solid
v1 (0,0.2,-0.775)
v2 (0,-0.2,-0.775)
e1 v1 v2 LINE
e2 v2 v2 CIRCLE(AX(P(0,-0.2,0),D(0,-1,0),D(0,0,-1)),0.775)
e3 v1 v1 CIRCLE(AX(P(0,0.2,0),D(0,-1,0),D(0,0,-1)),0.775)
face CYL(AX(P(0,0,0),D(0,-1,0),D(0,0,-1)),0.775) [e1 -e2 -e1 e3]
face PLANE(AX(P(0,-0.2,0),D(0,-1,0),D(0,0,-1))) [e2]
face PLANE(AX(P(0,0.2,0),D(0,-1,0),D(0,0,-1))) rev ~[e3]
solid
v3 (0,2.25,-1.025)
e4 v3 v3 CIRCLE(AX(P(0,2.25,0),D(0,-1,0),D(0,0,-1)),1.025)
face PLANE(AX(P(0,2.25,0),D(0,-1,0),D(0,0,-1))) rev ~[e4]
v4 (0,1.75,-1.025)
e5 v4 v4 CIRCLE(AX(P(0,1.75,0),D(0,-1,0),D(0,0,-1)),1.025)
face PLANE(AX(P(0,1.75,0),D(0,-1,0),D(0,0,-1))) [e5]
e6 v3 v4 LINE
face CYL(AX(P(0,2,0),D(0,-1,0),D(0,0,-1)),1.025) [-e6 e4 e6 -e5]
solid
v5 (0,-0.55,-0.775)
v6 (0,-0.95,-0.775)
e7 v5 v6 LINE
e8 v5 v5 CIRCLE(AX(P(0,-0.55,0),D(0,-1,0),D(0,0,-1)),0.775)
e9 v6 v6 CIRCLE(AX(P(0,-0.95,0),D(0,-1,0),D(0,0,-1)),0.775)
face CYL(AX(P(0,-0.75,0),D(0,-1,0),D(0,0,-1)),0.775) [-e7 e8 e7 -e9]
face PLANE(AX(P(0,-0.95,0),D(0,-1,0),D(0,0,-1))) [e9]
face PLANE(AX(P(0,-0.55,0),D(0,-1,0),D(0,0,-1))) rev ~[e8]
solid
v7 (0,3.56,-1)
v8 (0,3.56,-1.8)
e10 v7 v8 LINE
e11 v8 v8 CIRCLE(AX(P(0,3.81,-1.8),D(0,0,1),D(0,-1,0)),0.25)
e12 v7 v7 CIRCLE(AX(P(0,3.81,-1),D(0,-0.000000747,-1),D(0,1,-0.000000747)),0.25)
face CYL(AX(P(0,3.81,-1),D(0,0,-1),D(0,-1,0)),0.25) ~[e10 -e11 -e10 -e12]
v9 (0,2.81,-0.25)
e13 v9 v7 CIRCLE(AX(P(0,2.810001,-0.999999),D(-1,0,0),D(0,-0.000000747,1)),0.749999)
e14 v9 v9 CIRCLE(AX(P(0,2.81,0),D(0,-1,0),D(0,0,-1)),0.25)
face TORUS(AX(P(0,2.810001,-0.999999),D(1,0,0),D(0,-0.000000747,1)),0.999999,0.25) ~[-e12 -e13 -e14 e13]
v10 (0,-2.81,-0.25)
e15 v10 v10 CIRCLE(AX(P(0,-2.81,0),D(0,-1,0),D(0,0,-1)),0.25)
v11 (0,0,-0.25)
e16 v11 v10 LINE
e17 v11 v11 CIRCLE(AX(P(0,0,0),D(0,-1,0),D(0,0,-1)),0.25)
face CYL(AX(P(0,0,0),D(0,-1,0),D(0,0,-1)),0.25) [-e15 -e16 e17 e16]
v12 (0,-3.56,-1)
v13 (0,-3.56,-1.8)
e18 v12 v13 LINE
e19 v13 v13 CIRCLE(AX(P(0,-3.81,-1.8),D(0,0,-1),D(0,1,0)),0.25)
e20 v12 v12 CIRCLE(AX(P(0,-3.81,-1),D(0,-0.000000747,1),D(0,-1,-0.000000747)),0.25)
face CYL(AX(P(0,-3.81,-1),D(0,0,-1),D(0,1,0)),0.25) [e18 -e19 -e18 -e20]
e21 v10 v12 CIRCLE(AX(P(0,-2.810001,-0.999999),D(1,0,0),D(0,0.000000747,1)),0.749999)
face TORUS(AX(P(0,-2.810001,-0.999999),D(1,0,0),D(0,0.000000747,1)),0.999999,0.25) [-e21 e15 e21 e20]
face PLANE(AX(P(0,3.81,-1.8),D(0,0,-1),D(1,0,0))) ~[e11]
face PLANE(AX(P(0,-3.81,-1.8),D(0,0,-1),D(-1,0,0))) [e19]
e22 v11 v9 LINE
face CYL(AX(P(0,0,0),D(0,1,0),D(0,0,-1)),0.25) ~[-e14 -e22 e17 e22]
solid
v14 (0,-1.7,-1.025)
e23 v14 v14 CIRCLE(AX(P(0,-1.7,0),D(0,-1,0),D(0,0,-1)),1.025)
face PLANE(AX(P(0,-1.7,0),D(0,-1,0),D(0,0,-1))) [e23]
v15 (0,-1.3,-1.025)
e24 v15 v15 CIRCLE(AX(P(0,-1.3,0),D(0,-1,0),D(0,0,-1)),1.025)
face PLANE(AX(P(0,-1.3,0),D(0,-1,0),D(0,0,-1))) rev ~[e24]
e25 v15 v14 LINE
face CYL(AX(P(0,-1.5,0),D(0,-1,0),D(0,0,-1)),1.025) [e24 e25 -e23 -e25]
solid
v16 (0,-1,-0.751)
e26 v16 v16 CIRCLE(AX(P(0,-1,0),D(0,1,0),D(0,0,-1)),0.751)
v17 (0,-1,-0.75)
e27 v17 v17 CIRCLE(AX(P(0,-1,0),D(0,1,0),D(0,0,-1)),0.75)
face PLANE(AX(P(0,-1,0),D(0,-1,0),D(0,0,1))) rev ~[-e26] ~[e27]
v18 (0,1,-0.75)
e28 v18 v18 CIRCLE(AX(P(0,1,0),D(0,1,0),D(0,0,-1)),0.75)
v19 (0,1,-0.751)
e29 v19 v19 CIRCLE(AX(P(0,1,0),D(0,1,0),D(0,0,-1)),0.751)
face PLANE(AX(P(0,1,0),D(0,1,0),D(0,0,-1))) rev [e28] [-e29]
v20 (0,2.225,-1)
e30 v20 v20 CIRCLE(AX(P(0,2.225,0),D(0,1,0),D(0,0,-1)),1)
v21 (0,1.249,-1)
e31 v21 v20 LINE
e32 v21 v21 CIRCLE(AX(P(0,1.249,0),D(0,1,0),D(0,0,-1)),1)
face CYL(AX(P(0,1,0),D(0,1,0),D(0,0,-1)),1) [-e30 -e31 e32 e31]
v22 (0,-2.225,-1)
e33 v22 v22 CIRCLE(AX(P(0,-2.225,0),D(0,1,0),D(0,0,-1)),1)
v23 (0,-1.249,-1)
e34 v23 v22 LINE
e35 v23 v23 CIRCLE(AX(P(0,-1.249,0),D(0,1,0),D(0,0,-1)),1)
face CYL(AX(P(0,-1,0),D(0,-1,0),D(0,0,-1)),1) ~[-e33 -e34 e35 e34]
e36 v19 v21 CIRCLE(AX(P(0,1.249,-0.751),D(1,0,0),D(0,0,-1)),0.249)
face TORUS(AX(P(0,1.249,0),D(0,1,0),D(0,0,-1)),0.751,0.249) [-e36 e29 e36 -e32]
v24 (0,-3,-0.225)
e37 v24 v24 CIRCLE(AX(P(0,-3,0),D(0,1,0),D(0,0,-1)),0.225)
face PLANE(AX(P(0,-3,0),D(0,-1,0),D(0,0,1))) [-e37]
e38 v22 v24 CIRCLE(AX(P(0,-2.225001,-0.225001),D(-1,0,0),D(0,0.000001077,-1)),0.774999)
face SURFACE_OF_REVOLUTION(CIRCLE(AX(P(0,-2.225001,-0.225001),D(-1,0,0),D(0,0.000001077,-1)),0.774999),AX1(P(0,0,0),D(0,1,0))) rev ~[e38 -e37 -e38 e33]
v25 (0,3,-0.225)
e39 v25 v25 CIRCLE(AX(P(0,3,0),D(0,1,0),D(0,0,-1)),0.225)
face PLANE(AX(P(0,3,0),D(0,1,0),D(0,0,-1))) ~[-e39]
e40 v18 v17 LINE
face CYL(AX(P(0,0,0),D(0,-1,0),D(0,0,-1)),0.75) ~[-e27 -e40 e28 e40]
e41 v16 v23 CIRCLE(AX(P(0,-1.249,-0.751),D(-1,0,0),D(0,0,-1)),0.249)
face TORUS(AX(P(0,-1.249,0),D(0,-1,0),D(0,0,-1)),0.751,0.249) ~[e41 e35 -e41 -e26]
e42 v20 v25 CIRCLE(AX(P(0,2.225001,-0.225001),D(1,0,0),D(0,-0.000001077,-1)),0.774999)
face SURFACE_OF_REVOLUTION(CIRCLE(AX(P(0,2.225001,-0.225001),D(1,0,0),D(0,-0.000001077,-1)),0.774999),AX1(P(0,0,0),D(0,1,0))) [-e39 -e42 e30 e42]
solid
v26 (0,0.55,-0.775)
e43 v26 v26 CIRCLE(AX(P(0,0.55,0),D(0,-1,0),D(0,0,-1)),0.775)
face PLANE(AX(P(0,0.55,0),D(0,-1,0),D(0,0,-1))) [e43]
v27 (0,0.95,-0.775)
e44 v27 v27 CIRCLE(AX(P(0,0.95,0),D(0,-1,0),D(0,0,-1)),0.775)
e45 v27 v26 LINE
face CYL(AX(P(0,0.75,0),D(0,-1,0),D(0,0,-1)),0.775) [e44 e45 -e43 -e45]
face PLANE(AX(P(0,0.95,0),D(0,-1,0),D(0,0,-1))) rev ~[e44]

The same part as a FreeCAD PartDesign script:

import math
import FreeCAD as App
import Part
import Sketcher

V = App.Vector


def edges_at(feature, points):
    """Names of the edges that pass closest to the given points."""
    edges = feature.Shape.Edges
    near = lambda p: min(range(len(edges)), key=lambda i: edges[i].distToShape(Part.Vertex(*p))[0])
    return sorted({f"Edge{near(p) + 1}" for p in points})

doc = App.newDocument("Part")
params = doc.addObject("Spreadsheet::Sheet", "Params")
for row, (alias, value) in enumerate([
    ("sketch1_diameter", "2.05 mm"),
    ("pad1_length", "0.4 mm"),
    ("sketch2_diameter", "1.55 mm"),
    ("pad2_length", "0.4 mm"),
    ("sketch3_diameter", "1.55 mm"),
    ("pad3_length", "0.4 mm"),
    ("sketch4_diameter", "1.55 mm"),
    ("pad4_length", "0.4 mm"),
    ("sketch5_diameter", "2.05 mm"),
    ("pad5_length", "0.5 mm"),
    ("sketch6_width", "1 mm"),
    ("sketch6_width2", "3 mm"),
    ("sketch6_height", "0.75 mm"),
    ("revolution_angle", "360 deg"),
    ("fillet_radius", "0.249 mm"),
    ("sketch7_diameter", "0.5 mm"),
    ("sketch8_radius", "0.999999 mm"),
    ("sketch8_height", "0.8 mm"),
    ("sketch8_width", "2.81 mm"),
], start=1):
    params.set(f"A{row}", alias)
    params.set(f"B{row}", "=" + value)
    params.setAlias(f"B{row}", alias)

body = doc.addObject("PartDesign::Body", "Body")

# Sketch on XZ plane
sketch1 = body.newObject("Sketcher::SketchObject", "Sketch")
sketch1.AttachmentSupport = (doc.getObject("XZ_Plane"), [""])
sketch1.MapMode = "FlatFace"
sketch1.AttachmentOffset = App.Placement(V(0, 0, 1.5), App.Rotation())
sketch1.addGeometry(Part.Circle(V(0, 0, 0), V(0, 0, 1), 1.025), False)
sketch1.addConstraint([
    Sketcher.Constraint("Coincident", 0, 3, -1, 1),
    Sketcher.Constraint("Diameter", 0, 2.05),
])
sketch1.setExpression("Constraints[1]", "Params.sketch1_diameter")
pad1 = body.newObject("PartDesign::Pad", "Pad")
pad1.Profile = sketch1
pad1.setExpression("Length", "Params.pad1_length")
pad1.Midplane = True
body2 = doc.addObject("PartDesign::Body", "Body001")

# Sketch on XZ plane
sketch2 = body2.newObject("Sketcher::SketchObject", "Sketch001")
sketch2.AttachmentSupport = (doc.getObject("XZ_Plane001"), [""])
sketch2.MapMode = "FlatFace"
sketch2.AttachmentOffset = App.Placement(V(0, 0, 0.75), App.Rotation())
sketch2.addGeometry(Part.Circle(V(0, 0, 0), V(0, 0, 1), 0.775), False)
sketch2.addConstraint([
    Sketcher.Constraint("Coincident", 0, 3, -1, 1),
    Sketcher.Constraint("Diameter", 0, 1.55),
])
sketch2.setExpression("Constraints[1]", "Params.sketch2_diameter")
pad2 = body2.newObject("PartDesign::Pad", "Pad001")
pad2.Profile = sketch2
pad2.setExpression("Length", "Params.pad2_length")
pad2.Midplane = True
body3 = doc.addObject("PartDesign::Body", "Body002")

# Sketch on XZ plane
sketch3 = body3.newObject("Sketcher::SketchObject", "Sketch002")
sketch3.AttachmentSupport = (doc.getObject("XZ_Plane002"), [""])
sketch3.MapMode = "FlatFace"
sketch3.addGeometry(Part.Circle(V(0, 0, 0), V(0, 0, 1), 0.775), False)
sketch3.addConstraint([
    Sketcher.Constraint("Coincident", 0, 3, -1, 1),
    Sketcher.Constraint("Diameter", 0, 1.55),
])
sketch3.setExpression("Constraints[1]", "Params.sketch3_diameter")
pad3 = body3.newObject("PartDesign::Pad", "Pad002")
pad3.Profile = sketch3
pad3.setExpression("Length", "Params.pad3_length")
pad3.Midplane = True
body4 = doc.addObject("PartDesign::Body", "Body003")

# Sketch on XZ plane
sketch4 = body4.newObject("Sketcher::SketchObject", "Sketch003")
sketch4.AttachmentSupport = (doc.getObject("XZ_Plane003"), [""])
sketch4.MapMode = "FlatFace"
sketch4.AttachmentOffset = App.Placement(V(0, 0, -0.75), App.Rotation())
sketch4.addGeometry(Part.Circle(V(0, 0, 0), V(0, 0, 1), 0.775), False)
sketch4.addConstraint([
    Sketcher.Constraint("Coincident", 0, 3, -1, 1),
    Sketcher.Constraint("Diameter", 0, 1.55),
])
sketch4.setExpression("Constraints[1]", "Params.sketch4_diameter")
pad4 = body4.newObject("PartDesign::Pad", "Pad003")
pad4.Profile = sketch4
pad4.setExpression("Length", "Params.pad4_length")
pad4.Midplane = True
body5 = doc.addObject("PartDesign::Body", "Body004")

# Sketch on XZ plane
sketch5 = body5.newObject("Sketcher::SketchObject", "Sketch004")
sketch5.AttachmentSupport = (doc.getObject("XZ_Plane004"), [""])
sketch5.MapMode = "FlatFace"
sketch5.AttachmentOffset = App.Placement(V(0, 0, -2), App.Rotation())
sketch5.addGeometry(Part.Circle(V(0, 0, 0), V(0, 0, 1), 1.025), False)
sketch5.addConstraint([
    Sketcher.Constraint("Coincident", 0, 3, -1, 1),
    Sketcher.Constraint("Diameter", 0, 2.05),
])
sketch5.setExpression("Constraints[1]", "Params.sketch5_diameter")
pad5 = body5.newObject("PartDesign::Pad", "Pad004")
pad5.Profile = sketch5
pad5.setExpression("Length", "Params.pad5_length")
pad5.Midplane = True
body6 = doc.addObject("PartDesign::Body", "Body005")

# Sketch on YZ plane
sketch6 = body6.newObject("Sketcher::SketchObject", "Sketch005")
sketch6.AttachmentSupport = (doc.getObject("YZ_Plane005"), [""])
sketch6.MapMode = "FlatFace"
sketch6.addGeometry([
    Part.LineSegment(V(0, 0, 0), V(0, -0.75, 0)),  # 0
    Part.LineSegment(V(0, -0.75, 0), V(1, -0.75, 0)),  # 1
    Part.LineSegment(V(1, -0.75, 0), V(1, -1, 0)),  # 2
    Part.LineSegment(V(1, -1, 0), V(2.225, -1, 0)),  # 3
    Part.ArcOfCircle(Part.Circle(V(2.225001, -0.225001, 0), V(0, 0, 1), 0.774999), math.radians(-90.000062), math.radians(0.000062)),  # 4
    Part.LineSegment(V(3, -0.225, 0), V(3, 0, 0)),  # 5
    Part.LineSegment(V(3, 0, 0), V(0, 0, 0)),  # 6
], False)
sketch6.addConstraint([
    Sketcher.Constraint("Coincident", 0, 2, 1, 1),
    Sketcher.Constraint("Coincident", 1, 2, 2, 1),
    Sketcher.Constraint("Coincident", 2, 2, 3, 1),
    Sketcher.Constraint("Tangent", 3, 2, 4, 1),
    Sketcher.Constraint("Tangent", 4, 2, 5, 1),
    Sketcher.Constraint("Coincident", 5, 2, 6, 1),
    Sketcher.Constraint("Coincident", 6, 2, 0, 1),
    Sketcher.Constraint("Vertical", 0),
    Sketcher.Constraint("Horizontal", 1),
    Sketcher.Constraint("Vertical", 2),
    Sketcher.Constraint("Horizontal", 3),
    Sketcher.Constraint("Vertical", 5),
    Sketcher.Constraint("Horizontal", 6),
    Sketcher.Constraint("Coincident", 6, 2, -1, 1),
    Sketcher.Constraint("DistanceX", 1, 1, 1, 2, 1.0),
    Sketcher.Constraint("DistanceX", 6, 2, 6, 1, 3.0),
    Sketcher.Constraint("DistanceY", 2, 2, -1, 1, 1.0),
    Sketcher.Constraint("Radius", 4, 0.774999),
    Sketcher.Constraint("DistanceY", 0, 2, 0, 1, 0.75),
])
sketch6.setExpression("Constraints[14]", "Params.sketch6_width")
sketch6.setExpression("Constraints[15]", "Params.sketch6_width2")
sketch6.setExpression("Constraints[18]", "Params.sketch6_height")
revolution = body6.newObject("PartDesign::Revolution", "Revolution")
revolution.Profile = sketch6
revolution.ReferenceAxis = (sketch6, ["H_Axis"])
revolution.setExpression("Angle", "Params.revolution_angle")
doc.recompute()

mirrored = body6.newObject("PartDesign::Mirrored", "Mirrored")
mirrored.Originals = [revolution]
mirrored.MirrorPlane = (doc.getObject("XZ_Plane005"), [""])
body6.Tip = mirrored
doc.recompute()

fillet = body6.newObject("PartDesign::Fillet", "Fillet")
fillet.Base = (mirrored, edges_at(mirrored, [(0, -1, 1), (0, 1, 1)]))
fillet.setExpression("Radius", "Params.fillet_radius")
body7 = doc.addObject("PartDesign::Body", "Body006")

# Sketch on XZ plane
sketch7 = body7.newObject("Sketcher::SketchObject", "Sketch006")
sketch7.AttachmentSupport = (doc.getObject("XZ_Plane006"), [""])
sketch7.MapMode = "FlatFace"
sketch7.addGeometry(Part.Circle(V(0, 0, 0), V(0, 0, 1), 0.25), False)
sketch7.addConstraint([
    Sketcher.Constraint("Coincident", 0, 3, -1, 1),
    Sketcher.Constraint("Diameter", 0, 0.5),
])
sketch7.setExpression("Constraints[1]", "Params.sketch7_diameter")

# Sketch on YZ plane
sketch8 = body7.newObject("Sketcher::SketchObject", "Sketch007")
sketch8.AttachmentSupport = (doc.getObject("YZ_Plane006"), [""])
sketch8.MapMode = "FlatFace"
sketch8.addGeometry([
    Part.LineSegment(V(0, 0, 0), V(-2.81, 0, 0)),
    Part.ArcOfCircle(Part.Circle(V(-2.810001, -0.999999, 0), V(0, 0, 1), 0.999999), math.radians(89.999957), math.radians(180.000043)),
    Part.LineSegment(V(-3.81, -1, 0), V(-3.81, -1.8, 0)),
], False)
sketch8.addConstraint([
    Sketcher.Constraint("Tangent", 0, 2, 1, 1),
    Sketcher.Constraint("Tangent", 1, 2, 2, 1),
    Sketcher.Constraint("Horizontal", 0),
    Sketcher.Constraint("Vertical", 2),
    Sketcher.Constraint("Coincident", 0, 1, -1, 1),
    Sketcher.Constraint("Radius", 1, 0.999999),
    Sketcher.Constraint("DistanceY", 2, 2, 2, 1, 0.8),
    Sketcher.Constraint("DistanceX", 0, 2, 0, 1, 2.81),
])
sketch8.setExpression("Constraints[5]", "Params.sketch8_radius")
sketch8.setExpression("Constraints[6]", "Params.sketch8_height")
sketch8.setExpression("Constraints[7]", "Params.sketch8_width")
doc.recompute()

additivepipe = body7.newObject("PartDesign::AdditivePipe", "AdditivePipe")
additivepipe.Profile = sketch7
additivepipe.Spine = (sketch8, ["Edge1", "Edge2", "Edge3"])
doc.recompute()

mirrored2 = body7.newObject("PartDesign::Mirrored", "Mirrored001")
mirrored2.Originals = [additivepipe]
mirrored2.MirrorPlane = (doc.getObject("XZ_Plane006"), [""])
body7.Tip = mirrored2

doc.recompute()
